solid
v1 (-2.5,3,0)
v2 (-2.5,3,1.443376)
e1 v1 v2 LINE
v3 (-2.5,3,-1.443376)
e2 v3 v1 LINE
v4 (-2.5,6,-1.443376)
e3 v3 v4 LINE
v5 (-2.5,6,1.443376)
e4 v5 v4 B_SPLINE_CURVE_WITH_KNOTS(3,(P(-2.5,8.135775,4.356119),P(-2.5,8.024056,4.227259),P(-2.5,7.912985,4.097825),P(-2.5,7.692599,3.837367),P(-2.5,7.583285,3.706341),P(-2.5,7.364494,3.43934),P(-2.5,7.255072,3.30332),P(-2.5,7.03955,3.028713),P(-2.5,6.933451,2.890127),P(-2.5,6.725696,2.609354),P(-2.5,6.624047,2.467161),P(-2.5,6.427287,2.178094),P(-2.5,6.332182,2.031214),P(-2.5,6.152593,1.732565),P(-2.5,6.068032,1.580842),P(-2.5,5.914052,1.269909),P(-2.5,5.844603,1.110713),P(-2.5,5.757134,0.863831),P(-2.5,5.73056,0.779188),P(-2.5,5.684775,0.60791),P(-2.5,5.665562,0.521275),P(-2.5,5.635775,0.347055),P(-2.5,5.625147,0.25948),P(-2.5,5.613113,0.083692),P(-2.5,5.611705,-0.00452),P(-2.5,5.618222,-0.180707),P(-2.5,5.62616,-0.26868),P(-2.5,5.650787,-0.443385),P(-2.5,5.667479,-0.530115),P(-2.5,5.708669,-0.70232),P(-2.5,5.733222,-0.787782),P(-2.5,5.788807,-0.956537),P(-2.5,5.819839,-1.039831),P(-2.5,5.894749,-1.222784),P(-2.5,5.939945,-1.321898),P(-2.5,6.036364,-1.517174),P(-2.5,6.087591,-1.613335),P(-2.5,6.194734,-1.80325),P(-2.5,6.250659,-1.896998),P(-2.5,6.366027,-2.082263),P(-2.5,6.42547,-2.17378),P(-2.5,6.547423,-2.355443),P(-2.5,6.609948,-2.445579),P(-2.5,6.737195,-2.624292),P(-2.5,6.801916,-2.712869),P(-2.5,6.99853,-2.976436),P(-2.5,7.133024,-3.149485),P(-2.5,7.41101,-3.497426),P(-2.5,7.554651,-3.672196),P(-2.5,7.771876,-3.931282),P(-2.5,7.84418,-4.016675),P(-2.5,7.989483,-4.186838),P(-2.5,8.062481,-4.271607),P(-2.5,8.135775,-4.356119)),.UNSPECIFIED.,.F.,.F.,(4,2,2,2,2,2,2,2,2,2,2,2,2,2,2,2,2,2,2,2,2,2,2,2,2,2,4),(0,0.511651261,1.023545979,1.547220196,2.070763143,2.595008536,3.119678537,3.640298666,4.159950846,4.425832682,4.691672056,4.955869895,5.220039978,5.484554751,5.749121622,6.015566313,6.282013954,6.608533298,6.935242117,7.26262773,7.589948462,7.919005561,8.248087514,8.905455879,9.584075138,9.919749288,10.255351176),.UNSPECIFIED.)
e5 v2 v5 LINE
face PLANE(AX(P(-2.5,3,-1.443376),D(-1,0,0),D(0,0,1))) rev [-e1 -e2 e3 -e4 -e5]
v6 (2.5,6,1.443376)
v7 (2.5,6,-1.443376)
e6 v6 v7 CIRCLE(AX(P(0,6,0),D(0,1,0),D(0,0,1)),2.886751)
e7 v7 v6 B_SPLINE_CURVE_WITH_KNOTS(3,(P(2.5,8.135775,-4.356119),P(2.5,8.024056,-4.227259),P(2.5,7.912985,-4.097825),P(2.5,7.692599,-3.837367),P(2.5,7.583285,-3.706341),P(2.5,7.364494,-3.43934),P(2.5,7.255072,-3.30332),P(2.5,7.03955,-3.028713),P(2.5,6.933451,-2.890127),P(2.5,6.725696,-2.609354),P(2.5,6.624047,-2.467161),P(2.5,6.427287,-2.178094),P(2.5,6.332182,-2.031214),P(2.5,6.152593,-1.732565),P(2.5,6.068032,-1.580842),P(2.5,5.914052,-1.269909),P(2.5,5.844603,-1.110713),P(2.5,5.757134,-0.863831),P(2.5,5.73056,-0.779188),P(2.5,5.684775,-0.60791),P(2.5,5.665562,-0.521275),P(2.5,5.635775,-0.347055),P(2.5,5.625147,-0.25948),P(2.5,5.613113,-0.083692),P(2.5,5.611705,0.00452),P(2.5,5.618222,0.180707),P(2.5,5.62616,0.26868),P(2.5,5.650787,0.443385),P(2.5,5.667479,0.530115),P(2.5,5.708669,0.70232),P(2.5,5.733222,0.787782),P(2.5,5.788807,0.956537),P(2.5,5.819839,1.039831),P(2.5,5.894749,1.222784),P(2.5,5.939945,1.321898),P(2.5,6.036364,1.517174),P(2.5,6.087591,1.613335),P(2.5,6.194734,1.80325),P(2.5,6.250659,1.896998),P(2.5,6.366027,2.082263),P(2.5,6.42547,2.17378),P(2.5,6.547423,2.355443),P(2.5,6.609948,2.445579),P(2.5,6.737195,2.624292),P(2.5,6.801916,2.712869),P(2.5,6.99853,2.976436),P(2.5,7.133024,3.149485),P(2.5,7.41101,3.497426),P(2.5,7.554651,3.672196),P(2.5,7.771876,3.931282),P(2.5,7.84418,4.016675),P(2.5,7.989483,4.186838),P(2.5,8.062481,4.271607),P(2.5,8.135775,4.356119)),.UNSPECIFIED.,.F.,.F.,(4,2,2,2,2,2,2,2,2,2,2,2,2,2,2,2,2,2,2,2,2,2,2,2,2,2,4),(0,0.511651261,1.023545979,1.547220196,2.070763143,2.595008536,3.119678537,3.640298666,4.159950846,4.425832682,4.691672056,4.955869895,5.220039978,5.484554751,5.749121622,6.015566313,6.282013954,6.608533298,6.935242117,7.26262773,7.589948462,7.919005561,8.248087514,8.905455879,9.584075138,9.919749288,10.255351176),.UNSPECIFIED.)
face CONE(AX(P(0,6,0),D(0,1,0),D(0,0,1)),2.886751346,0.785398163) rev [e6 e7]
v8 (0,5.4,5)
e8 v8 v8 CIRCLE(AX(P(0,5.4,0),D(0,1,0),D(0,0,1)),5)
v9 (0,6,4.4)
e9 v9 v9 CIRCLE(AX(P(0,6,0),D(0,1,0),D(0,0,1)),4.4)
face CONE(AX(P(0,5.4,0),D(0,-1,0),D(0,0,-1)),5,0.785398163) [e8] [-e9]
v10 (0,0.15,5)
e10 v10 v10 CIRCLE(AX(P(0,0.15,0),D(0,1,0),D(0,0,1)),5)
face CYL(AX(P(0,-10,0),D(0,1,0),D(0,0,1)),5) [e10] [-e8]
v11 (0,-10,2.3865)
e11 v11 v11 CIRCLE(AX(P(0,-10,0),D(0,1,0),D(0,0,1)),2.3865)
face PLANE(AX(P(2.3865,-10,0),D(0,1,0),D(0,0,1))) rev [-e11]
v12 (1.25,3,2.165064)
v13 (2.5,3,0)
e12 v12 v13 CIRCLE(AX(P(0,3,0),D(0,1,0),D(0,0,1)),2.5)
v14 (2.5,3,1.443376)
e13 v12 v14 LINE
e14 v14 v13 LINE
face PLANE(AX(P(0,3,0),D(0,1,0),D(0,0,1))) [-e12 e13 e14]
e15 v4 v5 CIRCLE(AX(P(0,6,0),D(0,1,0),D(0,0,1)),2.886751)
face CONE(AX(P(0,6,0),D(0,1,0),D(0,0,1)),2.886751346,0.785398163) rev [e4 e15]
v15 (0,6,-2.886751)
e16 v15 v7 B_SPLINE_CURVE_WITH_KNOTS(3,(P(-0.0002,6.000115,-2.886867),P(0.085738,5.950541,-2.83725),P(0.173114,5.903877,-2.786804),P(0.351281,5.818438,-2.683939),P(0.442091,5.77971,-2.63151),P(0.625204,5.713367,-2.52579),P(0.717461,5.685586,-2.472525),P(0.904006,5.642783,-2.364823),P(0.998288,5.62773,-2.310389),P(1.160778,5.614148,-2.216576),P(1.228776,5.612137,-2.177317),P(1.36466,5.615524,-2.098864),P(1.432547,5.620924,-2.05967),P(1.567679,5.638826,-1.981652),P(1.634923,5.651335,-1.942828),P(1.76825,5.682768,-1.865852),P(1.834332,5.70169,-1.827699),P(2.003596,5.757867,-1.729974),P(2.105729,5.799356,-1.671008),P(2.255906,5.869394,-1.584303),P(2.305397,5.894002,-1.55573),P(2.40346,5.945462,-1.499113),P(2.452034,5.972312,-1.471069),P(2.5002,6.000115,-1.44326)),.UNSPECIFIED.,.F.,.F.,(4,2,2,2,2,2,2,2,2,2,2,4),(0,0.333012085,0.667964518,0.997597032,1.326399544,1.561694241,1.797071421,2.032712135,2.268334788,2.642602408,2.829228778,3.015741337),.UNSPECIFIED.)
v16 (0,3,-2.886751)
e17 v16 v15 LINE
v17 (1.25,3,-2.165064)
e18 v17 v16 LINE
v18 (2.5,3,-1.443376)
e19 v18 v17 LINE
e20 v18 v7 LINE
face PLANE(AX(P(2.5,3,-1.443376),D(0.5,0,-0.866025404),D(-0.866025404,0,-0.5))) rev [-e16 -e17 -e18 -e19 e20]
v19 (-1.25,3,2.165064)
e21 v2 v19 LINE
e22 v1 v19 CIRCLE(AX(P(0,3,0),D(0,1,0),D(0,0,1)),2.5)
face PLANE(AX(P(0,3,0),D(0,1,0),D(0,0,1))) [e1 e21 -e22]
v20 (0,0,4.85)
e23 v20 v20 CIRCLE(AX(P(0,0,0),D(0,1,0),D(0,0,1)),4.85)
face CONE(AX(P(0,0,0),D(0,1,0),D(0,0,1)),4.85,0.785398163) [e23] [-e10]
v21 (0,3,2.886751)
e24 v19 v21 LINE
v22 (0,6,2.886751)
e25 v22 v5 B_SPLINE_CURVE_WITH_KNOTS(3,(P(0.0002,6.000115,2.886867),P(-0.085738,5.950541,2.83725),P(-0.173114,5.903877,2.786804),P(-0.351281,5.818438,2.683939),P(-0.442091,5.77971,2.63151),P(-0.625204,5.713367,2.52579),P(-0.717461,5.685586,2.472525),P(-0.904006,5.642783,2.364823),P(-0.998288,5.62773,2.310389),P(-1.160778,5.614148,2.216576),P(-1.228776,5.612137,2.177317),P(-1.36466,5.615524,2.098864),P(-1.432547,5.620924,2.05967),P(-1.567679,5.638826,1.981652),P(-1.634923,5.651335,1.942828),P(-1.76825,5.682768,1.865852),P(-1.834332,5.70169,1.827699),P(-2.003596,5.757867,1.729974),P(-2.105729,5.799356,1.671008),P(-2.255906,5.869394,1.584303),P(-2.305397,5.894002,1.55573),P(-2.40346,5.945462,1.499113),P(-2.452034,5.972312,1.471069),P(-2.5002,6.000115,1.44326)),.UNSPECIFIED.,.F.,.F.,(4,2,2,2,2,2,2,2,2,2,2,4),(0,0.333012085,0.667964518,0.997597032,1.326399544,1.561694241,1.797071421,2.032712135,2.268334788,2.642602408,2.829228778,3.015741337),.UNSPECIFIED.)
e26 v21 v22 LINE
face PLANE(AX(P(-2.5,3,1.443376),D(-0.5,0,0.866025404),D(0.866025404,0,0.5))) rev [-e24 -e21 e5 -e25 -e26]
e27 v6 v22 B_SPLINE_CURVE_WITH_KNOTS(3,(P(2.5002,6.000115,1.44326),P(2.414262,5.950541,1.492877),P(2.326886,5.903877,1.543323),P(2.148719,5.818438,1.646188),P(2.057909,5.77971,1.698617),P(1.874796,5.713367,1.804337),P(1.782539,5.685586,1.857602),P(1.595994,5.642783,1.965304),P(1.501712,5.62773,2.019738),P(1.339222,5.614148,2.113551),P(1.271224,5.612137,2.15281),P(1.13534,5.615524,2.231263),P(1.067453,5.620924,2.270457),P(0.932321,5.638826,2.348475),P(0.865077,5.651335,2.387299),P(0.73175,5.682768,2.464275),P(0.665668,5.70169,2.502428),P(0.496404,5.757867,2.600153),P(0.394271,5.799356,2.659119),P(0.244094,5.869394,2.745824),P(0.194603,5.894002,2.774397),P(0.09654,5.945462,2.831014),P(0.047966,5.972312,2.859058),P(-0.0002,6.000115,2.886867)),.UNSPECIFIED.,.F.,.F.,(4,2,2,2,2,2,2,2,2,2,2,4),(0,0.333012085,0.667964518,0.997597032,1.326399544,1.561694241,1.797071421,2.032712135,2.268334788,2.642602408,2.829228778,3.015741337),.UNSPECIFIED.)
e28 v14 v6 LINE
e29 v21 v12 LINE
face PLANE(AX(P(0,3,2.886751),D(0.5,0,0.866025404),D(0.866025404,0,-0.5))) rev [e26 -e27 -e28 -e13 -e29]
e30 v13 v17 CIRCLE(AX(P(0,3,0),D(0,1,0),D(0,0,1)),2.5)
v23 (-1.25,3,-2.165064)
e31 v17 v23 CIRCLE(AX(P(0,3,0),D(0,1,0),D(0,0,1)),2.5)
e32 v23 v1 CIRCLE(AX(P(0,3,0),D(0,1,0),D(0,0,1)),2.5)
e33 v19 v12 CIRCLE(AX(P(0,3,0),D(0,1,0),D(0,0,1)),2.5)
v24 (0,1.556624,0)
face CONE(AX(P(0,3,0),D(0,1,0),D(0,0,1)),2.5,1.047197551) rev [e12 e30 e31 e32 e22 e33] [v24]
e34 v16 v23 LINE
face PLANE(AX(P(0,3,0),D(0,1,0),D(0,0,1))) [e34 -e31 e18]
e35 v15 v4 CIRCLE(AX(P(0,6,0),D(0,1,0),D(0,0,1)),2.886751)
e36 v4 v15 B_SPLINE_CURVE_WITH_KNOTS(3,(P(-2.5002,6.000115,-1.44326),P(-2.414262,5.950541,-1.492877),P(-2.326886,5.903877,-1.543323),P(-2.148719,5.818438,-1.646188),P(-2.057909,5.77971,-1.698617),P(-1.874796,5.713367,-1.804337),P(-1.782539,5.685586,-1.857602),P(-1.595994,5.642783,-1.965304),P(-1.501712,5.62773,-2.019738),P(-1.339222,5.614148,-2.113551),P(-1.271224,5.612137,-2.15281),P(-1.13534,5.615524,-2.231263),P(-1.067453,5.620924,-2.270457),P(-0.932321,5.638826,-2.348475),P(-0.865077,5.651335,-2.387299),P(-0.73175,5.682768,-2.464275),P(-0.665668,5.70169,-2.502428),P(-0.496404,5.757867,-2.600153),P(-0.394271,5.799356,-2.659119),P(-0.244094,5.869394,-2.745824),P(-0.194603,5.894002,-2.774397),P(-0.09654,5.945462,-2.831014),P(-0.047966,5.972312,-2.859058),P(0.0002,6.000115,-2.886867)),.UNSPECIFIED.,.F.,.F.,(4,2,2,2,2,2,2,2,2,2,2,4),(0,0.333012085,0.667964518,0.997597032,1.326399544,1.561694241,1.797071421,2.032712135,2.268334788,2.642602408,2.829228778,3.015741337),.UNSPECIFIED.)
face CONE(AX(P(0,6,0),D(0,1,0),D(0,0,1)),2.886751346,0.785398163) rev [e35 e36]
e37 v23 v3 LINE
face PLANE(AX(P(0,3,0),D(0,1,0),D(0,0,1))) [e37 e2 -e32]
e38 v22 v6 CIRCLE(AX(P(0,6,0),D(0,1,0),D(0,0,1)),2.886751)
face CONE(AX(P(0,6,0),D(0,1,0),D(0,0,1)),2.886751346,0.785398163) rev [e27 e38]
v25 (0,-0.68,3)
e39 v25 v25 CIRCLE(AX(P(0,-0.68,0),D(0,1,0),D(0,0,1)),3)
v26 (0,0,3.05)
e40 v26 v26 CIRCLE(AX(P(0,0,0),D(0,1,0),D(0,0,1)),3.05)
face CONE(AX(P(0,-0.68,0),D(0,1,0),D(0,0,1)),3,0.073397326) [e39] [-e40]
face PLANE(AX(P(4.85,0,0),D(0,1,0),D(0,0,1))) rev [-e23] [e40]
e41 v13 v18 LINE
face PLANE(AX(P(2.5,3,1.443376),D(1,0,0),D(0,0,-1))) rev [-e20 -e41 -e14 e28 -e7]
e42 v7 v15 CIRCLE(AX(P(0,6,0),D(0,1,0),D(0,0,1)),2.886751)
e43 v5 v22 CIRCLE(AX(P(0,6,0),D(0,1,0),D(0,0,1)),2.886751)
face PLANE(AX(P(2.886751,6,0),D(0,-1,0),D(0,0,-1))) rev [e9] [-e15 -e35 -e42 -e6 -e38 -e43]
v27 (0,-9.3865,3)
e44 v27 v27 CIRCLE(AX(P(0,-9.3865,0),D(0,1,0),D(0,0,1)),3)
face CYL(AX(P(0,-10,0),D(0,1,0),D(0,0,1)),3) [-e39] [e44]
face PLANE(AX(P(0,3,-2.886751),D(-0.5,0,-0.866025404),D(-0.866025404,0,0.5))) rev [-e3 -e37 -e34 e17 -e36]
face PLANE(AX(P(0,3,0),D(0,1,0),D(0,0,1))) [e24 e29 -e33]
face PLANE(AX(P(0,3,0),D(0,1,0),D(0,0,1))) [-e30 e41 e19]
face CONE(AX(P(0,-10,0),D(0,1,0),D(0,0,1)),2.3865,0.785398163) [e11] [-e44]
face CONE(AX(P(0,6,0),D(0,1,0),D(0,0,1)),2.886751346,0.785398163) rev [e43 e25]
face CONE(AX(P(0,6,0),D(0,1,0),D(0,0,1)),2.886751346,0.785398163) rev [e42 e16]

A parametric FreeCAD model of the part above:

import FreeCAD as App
import Part
import Sketcher

V = App.Vector
Q = App.Units.Quantity

doc = App.newDocument("Part")
params = doc.addObject("Spreadsheet::Sheet", "Params")
for row, (alias, value) in enumerate([
    ("sketch1_width", "1.8 mm"),
    ("sketch1_height", "5.25 mm"),
    ("revolution_angle", "360 deg"),
    ("pocket1_length", "3 mm"),
], start=1):
    params.set(f"A{row}", alias)
    params.set(f"B{row}", "=" + value)
    params.setAlias(f"B{row}", alias)

body = doc.addObject("PartDesign::Body", "Body")

sketch1 = body.newObject("Sketcher::SketchObject", "Sketch")
sketch1.AttachmentSupport = (doc.getObject("XY_Plane"), [""])
sketch1.MapMode = "FlatFace"
sketch1.addGeometry(Part.LineSegment(V(2.5, 3, 0), V(0, 1.56, 0)), False)
sketch1.addGeometry(Part.LineSegment(V(0, 1.56, 0), V(0, -10, 0)), False)
sketch1.addGeometry(Part.LineSegment(V(0, -10, 0), V(2.39, -10, 0)), False)
sketch1.addGeometry(Part.LineSegment(V(2.39, -10, 0), V(3, -9.39, 0)), False)
sketch1.addGeometry(Part.LineSegment(V(3, -9.39, 0), V(3, -0.68, 0)), False)
sketch1.addGeometry(Part.LineSegment(V(3, -0.68, 0), V(3.05, 0, 0)), False)
sketch1.addGeometry(Part.LineSegment(V(3.05, 0, 0), V(4.85, 0, 0)), False)
sketch1.addGeometry(Part.LineSegment(V(4.85, 0, 0), V(5, 0.15, 0)), False)
sketch1.addGeometry(Part.LineSegment(V(5, 0.15, 0), V(5, 5.4, 0)), False)
sketch1.addGeometry(Part.LineSegment(V(5, 5.4, 0), V(4.4, 6, 0)), False)
sketch1.addGeometry(Part.LineSegment(V(4.4, 6, 0), V(2.89, 6, 0)), False)
sketch1.addGeometry(Part.LineSegment(V(2.89, 6, 0), V(2.5, 5.61, 0)), False)
sketch1.addGeometry(Part.LineSegment(V(2.5, 5.61, 0), V(2.5, 3, 0)), False)
sketch1.addConstraint(Sketcher.Constraint("Coincident", 0, 2, 1, 1))
sketch1.addConstraint(Sketcher.Constraint("Coincident", 1, 2, 2, 1))
sketch1.addConstraint(Sketcher.Constraint("Coincident", 2, 2, 3, 1))
sketch1.addConstraint(Sketcher.Constraint("Coincident", 3, 2, 4, 1))
sketch1.addConstraint(Sketcher.Constraint("Coincident", 4, 2, 5, 1))
sketch1.addConstraint(Sketcher.Constraint("Coincident", 5, 2, 6, 1))
sketch1.addConstraint(Sketcher.Constraint("Coincident", 6, 2, 7, 1))
sketch1.addConstraint(Sketcher.Constraint("Coincident", 7, 2, 8, 1))
sketch1.addConstraint(Sketcher.Constraint("Coincident", 8, 2, 9, 1))
sketch1.addConstraint(Sketcher.Constraint("Coincident", 9, 2, 10, 1))
sketch1.addConstraint(Sketcher.Constraint("Coincident", 10, 2, 11, 1))
sketch1.addConstraint(Sketcher.Constraint("Coincident", 11, 2, 12, 1))
sketch1.addConstraint(Sketcher.Constraint("Coincident", 12, 2, 0, 1))
sketch1.addConstraint(Sketcher.Constraint("Vertical", 1))
sketch1.addConstraint(Sketcher.Constraint("Horizontal", 2))
sketch1.addConstraint(Sketcher.Constraint("Vertical", 4))
sketch1.addConstraint(Sketcher.Constraint("Horizontal", 6))
sketch1.addConstraint(Sketcher.Constraint("Vertical", 8))
sketch1.addConstraint(Sketcher.Constraint("Horizontal", 10))
sketch1.addConstraint(Sketcher.Constraint("Vertical", 12))
sketch1.addConstraint(Sketcher.Constraint("PointOnObject", 0, 2, -2))
sketch1.addConstraint(Sketcher.Constraint("PointOnObject", 5, 2, -1))
sketch1.addConstraint(Sketcher.Constraint("Parallel", 3, 7))
sketch1.addConstraint(Sketcher.Constraint("Perpendicular", 7, 9))
sketch1.addConstraint(Sketcher.Constraint("Perpendicular", 9, 11))
sketch1.addConstraint(Sketcher.Constraint("Angle", 0, Q("-150 deg")))
sketch1.addConstraint(Sketcher.Constraint("Angle", 3, Q("45 deg")))
sketch1.addConstraint(Sketcher.Constraint("DistanceX", 6, 1, 6, 2, 1.8))
sketch1.addConstraint(Sketcher.Constraint("DistanceY", 1, 2, -1, 1, 10.0))
sketch1.addConstraint(Sketcher.Constraint("DistanceX", -1, 1, 3, 2, 3.0))
sketch1.addConstraint(Sketcher.Constraint("DistanceX", -1, 1, 7, 2, 5.0))
sketch1.addConstraint(Sketcher.Constraint("DistanceY", -1, 1, 9, 2, 6.0))
sketch1.addConstraint(Sketcher.Constraint("DistanceY", -1, 1, 12, 2, 3.0))
sketch1.addConstraint(Sketcher.Constraint("DistanceY", 8, 1, 8, 2, 5.25))
sketch1.addConstraint(Sketcher.Constraint("DistanceY", -1, 1, 8, 2, 5.4))
sketch1.addConstraint(Sketcher.Constraint("DistanceX", -1, 1, 11, 2, 2.5))
sketch1.addConstraint(Sketcher.Constraint("DistanceY", 4, 2, -1, 1, 0.68))
sketch1.addConstraint(Sketcher.Constraint("DistanceX", 2, 1, 2, 2, 2.3865))
sketch1.addConstraint(Sketcher.Constraint("DistanceX", 10, 2, 10, 1, 1.513249))
sketch1.setExpression("Constraints[27]", "Params.sketch1_width")
sketch1.setExpression("Constraints[33]", "Params.sketch1_height")
revolution = body.newObject("PartDesign::Revolution", "Revolution")
revolution.Profile = sketch1
revolution.ReferenceAxis = (sketch1, ["V_Axis"])
revolution.setExpression("Angle", "Params.revolution_angle")

sketch2 = body.newObject("Sketcher::SketchObject", "Sketch001")
sketch2.AttachmentSupport = (doc.getObject("XZ_Plane"), [""])
sketch2.MapMode = "FlatFace"
sketch2.AttachmentOffset = App.Placement(V(0, 0, -6), App.Rotation())
sketch2.addGeometry(Part.LineSegment(V(-2.5, 1.4, 0), V(0, 2.9, 0)), False)
sketch2.addGeometry(Part.LineSegment(V(0, 2.9, 0), V(2.5, 1.4, 0)), False)
sketch2.addGeometry(Part.LineSegment(V(2.5, 1.4, 0), V(2.5, -1.4, 0)), False)
sketch2.addGeometry(Part.LineSegment(V(2.5, -1.4, 0), V(0, -2.9, 0)), False)
sketch2.addGeometry(Part.LineSegment(V(0, -2.9, 0), V(-2.5, -1.4, 0)), False)
sketch2.addGeometry(Part.LineSegment(V(-2.5, -1.4, 0), V(-2.5, 1.4, 0)), False)
sketch2.addConstraint(Sketcher.Constraint("Coincident", 0, 2, 1, 1))
sketch2.addConstraint(Sketcher.Constraint("Coincident", 1, 2, 2, 1))
sketch2.addConstraint(Sketcher.Constraint("Coincident", 2, 2, 3, 1))
sketch2.addConstraint(Sketcher.Constraint("Coincident", 3, 2, 4, 1))
sketch2.addConstraint(Sketcher.Constraint("Coincident", 4, 2, 5, 1))
sketch2.addConstraint(Sketcher.Constraint("Coincident", 5, 2, 0, 1))
sketch2.addConstraint(Sketcher.Constraint("Vertical", 2))
sketch2.addConstraint(Sketcher.Constraint("Vertical", 5))
sketch2.addConstraint(Sketcher.Constraint("Symmetric", 0, 2, 3, 2, -1, 1))
sketch2.addConstraint(Sketcher.Constraint("Symmetric", 1, 2, 4, 2, -1, 1))
sketch2.addConstraint(Sketcher.Constraint("PointOnObject", 0, 2, -2))
sketch2.addConstraint(Sketcher.Constraint("Parallel", 0, 3))
sketch2.addConstraint(Sketcher.Constraint("Horizontal", 2, 2, 4, 2))
sketch2.addConstraint(Sketcher.Constraint("Angle", 0, Q("30 deg")))
sketch2.addConstraint(Sketcher.Constraint("DistanceX", 4, 2, 2, 2, 5.0))
sketch2.addConstraint(Sketcher.Constraint("DistanceY", 2, 2, 2, 1, 2.886751))
pocket1 = body.newObject("PartDesign::Pocket", "Pocket")
pocket1.Profile = sketch2
pocket1.setExpression("Length", "Params.pocket1_length")
pocket1.Reversed = True

doc.recompute()
